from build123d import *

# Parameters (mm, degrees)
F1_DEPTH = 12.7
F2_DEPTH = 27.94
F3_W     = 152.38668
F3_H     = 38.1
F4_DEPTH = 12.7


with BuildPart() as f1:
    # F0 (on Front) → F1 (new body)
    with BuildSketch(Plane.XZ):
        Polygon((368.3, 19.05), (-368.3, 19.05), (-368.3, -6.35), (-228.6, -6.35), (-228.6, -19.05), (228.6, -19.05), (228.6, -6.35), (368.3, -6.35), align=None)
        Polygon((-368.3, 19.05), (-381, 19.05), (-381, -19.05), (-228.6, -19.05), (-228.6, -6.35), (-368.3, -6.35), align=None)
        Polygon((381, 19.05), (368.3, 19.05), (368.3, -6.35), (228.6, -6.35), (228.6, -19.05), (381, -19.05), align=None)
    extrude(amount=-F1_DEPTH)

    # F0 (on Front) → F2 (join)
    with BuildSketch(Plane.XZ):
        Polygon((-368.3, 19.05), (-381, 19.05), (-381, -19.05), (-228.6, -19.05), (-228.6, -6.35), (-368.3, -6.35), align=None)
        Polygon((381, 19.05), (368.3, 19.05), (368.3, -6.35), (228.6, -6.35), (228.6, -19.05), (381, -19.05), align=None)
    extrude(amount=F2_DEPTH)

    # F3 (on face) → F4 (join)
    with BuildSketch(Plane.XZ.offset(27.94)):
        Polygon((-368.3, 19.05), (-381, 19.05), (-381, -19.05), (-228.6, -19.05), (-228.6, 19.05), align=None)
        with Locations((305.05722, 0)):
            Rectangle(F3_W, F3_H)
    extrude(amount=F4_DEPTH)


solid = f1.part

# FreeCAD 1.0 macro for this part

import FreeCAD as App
import Part
import Sketcher
from FreeCAD import Vector
Q = App.Units.Quantity

doc = App.newDocument("Part")
body = doc.addObject("PartDesign::Body", "Body")

# Sketch on XZ plane
sketch1 = body.newObject("Sketcher::SketchObject", "Sketch")
sketch1.AttachmentSupport = (doc.getObject("XZ_Plane"), [""])
sketch1.MapMode = "FlatFace"
sketch1.addGeometry([
    Part.LineSegment(Vector(-381, 19.05, 0), Vector(-381, -19.05, 0)),
    Part.LineSegment(Vector(-381, -19.05, 0), Vector(381, -19.05, 0)),
    Part.LineSegment(Vector(381, -19.05, 0), Vector(381, 19.05, 0)),
    Part.LineSegment(Vector(381, 19.05, 0), Vector(-381, 19.05, 0)),
], False)
sketch1.addConstraint([
    Sketcher.Constraint("Coincident", 0, 2, 1, 1),
    Sketcher.Constraint("Coincident", 1, 2, 2, 1),
    Sketcher.Constraint("Coincident", 2, 2, 3, 1),
    Sketcher.Constraint("Coincident", 3, 2, 0, 1),
    Sketcher.Constraint("Vertical", 0),
    Sketcher.Constraint("Horizontal", 1),
    Sketcher.Constraint("Vertical", 2),
    Sketcher.Constraint("Horizontal", 3),
    Sketcher.Constraint("Symmetric", 0, 2, 2, 2, -1, 1),
    Sketcher.Constraint("DistanceX", 1, 1, 1, 2, Q("30 in")),
    Sketcher.Constraint("DistanceY", 0, 2, 0, 1, Q("1.5 in")),
])
pad1 = body.newObject("PartDesign::Pad", "Pad")
pad1.Profile = sketch1
pad1.Length = Q("0.5 in")
pad1.Reversed = True

# Sketch on XZ plane
sketch2 = body.newObject("Sketcher::SketchObject", "Sketch001")
sketch2.AttachmentSupport = (doc.getObject("XZ_Plane"), [""])
sketch2.MapMode = "FlatFace"
sketch2.addGeometry([
    Part.LineSegment(Vector(-368.3, 19.05, 0), Vector(-381, 19.05, 0)),  # 0
    Part.LineSegment(Vector(-381, 19.05, 0), Vector(-381, -19.05, 0)),  # 1
    Part.LineSegment(Vector(-381, -19.05, 0), Vector(-228.6, -19.05, 0)),  # 2
    Part.LineSegment(Vector(-228.6, -19.05, 0), Vector(-228.6, -6.35, 0)),  # 3
    Part.LineSegment(Vector(-228.6, -6.35, 0), Vector(-368.3, -6.35, 0)),  # 4
    Part.LineSegment(Vector(-368.3, -6.35, 0), Vector(-368.3, 19.05, 0)),  # 5
    Part.LineSegment(Vector(381, 19.05, 0), Vector(368.3, 19.05, 0)),  # 6
    Part.LineSegment(Vector(368.3, 19.05, 0), Vector(368.3, -6.35, 0)),  # 7
    Part.LineSegment(Vector(368.3, -6.35, 0), Vector(228.6, -6.35, 0)),  # 8
    Part.LineSegment(Vector(228.6, -6.35, 0), Vector(228.6, -19.05, 0)),  # 9
    Part.LineSegment(Vector(228.6, -19.05, 0), Vector(381, -19.05, 0)),  # 10
    Part.LineSegment(Vector(381, -19.05, 0), Vector(381, 19.05, 0)),  # 11
], False)
sketch2.addConstraint([
    Sketcher.Constraint("Coincident", 0, 2, 1, 1),
    Sketcher.Constraint("Coincident", 1, 2, 2, 1),
    Sketcher.Constraint("Coincident", 2, 2, 3, 1),
    Sketcher.Constraint("Coincident", 3, 2, 4, 1),
    Sketcher.Constraint("Coincident", 4, 2, 5, 1),
    Sketcher.Constraint("Coincident", 5, 2, 0, 1),
    Sketcher.Constraint("Coincident", 6, 2, 7, 1),
    Sketcher.Constraint("Coincident", 7, 2, 8, 1),
    Sketcher.Constraint("Coincident", 8, 2, 9, 1),
    Sketcher.Constraint("Coincident", 9, 2, 10, 1),
    Sketcher.Constraint("Coincident", 10, 2, 11, 1),
    Sketcher.Constraint("Coincident", 11, 2, 6, 1),
    Sketcher.Constraint("Horizontal", 0),
    Sketcher.Constraint("Vertical", 1),
    Sketcher.Constraint("Horizontal", 2),
    Sketcher.Constraint("Vertical", 3),
    Sketcher.Constraint("Horizontal", 4),
    Sketcher.Constraint("Vertical", 5),
    Sketcher.Constraint("Horizontal", 6),
    Sketcher.Constraint("Vertical", 7),
    Sketcher.Constraint("Horizontal", 8),
    Sketcher.Constraint("Vertical", 9),
    Sketcher.Constraint("Horizontal", 10),
    Sketcher.Constraint("Vertical", 11),
    Sketcher.Constraint("Symmetric", 0, 2, 10, 2, -1, 1),
    Sketcher.Constraint("Symmetric", 5, 2, 6, 2, -2),
    Sketcher.Constraint("Symmetric", 3, 2, 8, 2, -2),
    Sketcher.Constraint("Horizontal", 2, 2, 9, 2),
    Sketcher.Constraint("Equal", 6, 3),
    Sketcher.Constraint("DistanceX", 2, 1, 2, 2, Q("6 in")),
    Sketcher.Constraint("DistanceY", 5, 1, 5, 2, Q("1 in")),
    Sketcher.Constraint("DistanceX", 0, 2, 0, 1, Q("0.5 in")),
    Sketcher.Constraint("DistanceX", 0, 2, -1, 1, Q("15 in")),
])
pad2 = body.newObject("PartDesign::Pad", "Pad001")
pad2.Profile = sketch2
pad2.Length = Q("1.1 in")

# Sketch on XZ plane
sketch3 = body.newObject("Sketcher::SketchObject", "Sketch002")
sketch3.AttachmentSupport = (doc.getObject("XZ_Plane"), [""])
sketch3.MapMode = "FlatFace"
sketch3.AttachmentOffset = App.Placement(Vector(0, 0, 1.1 * 25.4), App.Rotation())
sketch3.addGeometry([
    Part.LineSegment(Vector(-381, 19.05, 0), Vector(-381, -19.05, 0)),  # 0
    Part.LineSegment(Vector(-381, -19.05, 0), Vector(-228.6, -19.05, 0)),  # 1
    Part.LineSegment(Vector(-228.6, -19.05, 0), Vector(-228.6, 19.05, 0)),  # 2
    Part.LineSegment(Vector(-228.6, 19.05, 0), Vector(-381, 19.05, 0)),  # 3
    Part.LineSegment(Vector(228.86388, 19.05, 0), Vector(228.86388, -19.05, 0)),  # 4
    Part.LineSegment(Vector(228.86388, -19.05, 0), Vector(381.25056, -19.05, 0)),  # 5
    Part.LineSegment(Vector(381.25056, -19.05, 0), Vector(381.25056, 19.05, 0)),  # 6
    Part.LineSegment(Vector(381.25056, 19.05, 0), Vector(228.86388, 19.05, 0)),  # 7
], False)
sketch3.addConstraint([
    Sketcher.Constraint("Coincident", 0, 2, 1, 1),
    Sketcher.Constraint("Coincident", 1, 2, 2, 1),
    Sketcher.Constraint("Coincident", 2, 2, 3, 1),
    Sketcher.Constraint("Coincident", 3, 2, 0, 1),
    Sketcher.Constraint("Coincident", 4, 2, 5, 1),
    Sketcher.Constraint("Coincident", 5, 2, 6, 1),
    Sketcher.Constraint("Coincident", 6, 2, 7, 1),
    Sketcher.Constraint("Coincident", 7, 2, 4, 1),
    Sketcher.Constraint("Vertical", 0),
    Sketcher.Constraint("Horizontal", 1),
    Sketcher.Constraint("Vertical", 2),
    Sketcher.Constraint("Horizontal", 3),
    Sketcher.Constraint("Vertical", 4),
    Sketcher.Constraint("Horizontal", 5),
    Sketcher.Constraint("Vertical", 6),
    Sketcher.Constraint("Horizontal", 7),
    Sketcher.Constraint("Horizontal", 1, 2, 4, 2),
    Sketcher.Constraint("Horizontal", 3, 2, 6, 2),
    Sketcher.Constraint("DistanceX", 1, 1, 1, 2, Q("6 in")),
    Sketcher.Constraint("DistanceY", 0, 2, 0, 1, Q("1.5 in")),
    Sketcher.Constraint("DistanceX", 0, 2, -1, 1, Q("15 in")),
    Sketcher.Constraint("DistanceY", 0, 2, -1, 1, Q("0.75 in")),
    Sketcher.Constraint("DistanceX", 5, 1, 5, 2, Q("152.38668 mm")),
    Sketcher.Constraint("DistanceX", -1, 1, 4, 2, Q("228.86388 mm")),
])
pad3 = body.newObject("PartDesign::Pad", "Pad002")
pad3.Profile = sketch3
pad3.Length = Q("0.5 in")

doc.recompute()
